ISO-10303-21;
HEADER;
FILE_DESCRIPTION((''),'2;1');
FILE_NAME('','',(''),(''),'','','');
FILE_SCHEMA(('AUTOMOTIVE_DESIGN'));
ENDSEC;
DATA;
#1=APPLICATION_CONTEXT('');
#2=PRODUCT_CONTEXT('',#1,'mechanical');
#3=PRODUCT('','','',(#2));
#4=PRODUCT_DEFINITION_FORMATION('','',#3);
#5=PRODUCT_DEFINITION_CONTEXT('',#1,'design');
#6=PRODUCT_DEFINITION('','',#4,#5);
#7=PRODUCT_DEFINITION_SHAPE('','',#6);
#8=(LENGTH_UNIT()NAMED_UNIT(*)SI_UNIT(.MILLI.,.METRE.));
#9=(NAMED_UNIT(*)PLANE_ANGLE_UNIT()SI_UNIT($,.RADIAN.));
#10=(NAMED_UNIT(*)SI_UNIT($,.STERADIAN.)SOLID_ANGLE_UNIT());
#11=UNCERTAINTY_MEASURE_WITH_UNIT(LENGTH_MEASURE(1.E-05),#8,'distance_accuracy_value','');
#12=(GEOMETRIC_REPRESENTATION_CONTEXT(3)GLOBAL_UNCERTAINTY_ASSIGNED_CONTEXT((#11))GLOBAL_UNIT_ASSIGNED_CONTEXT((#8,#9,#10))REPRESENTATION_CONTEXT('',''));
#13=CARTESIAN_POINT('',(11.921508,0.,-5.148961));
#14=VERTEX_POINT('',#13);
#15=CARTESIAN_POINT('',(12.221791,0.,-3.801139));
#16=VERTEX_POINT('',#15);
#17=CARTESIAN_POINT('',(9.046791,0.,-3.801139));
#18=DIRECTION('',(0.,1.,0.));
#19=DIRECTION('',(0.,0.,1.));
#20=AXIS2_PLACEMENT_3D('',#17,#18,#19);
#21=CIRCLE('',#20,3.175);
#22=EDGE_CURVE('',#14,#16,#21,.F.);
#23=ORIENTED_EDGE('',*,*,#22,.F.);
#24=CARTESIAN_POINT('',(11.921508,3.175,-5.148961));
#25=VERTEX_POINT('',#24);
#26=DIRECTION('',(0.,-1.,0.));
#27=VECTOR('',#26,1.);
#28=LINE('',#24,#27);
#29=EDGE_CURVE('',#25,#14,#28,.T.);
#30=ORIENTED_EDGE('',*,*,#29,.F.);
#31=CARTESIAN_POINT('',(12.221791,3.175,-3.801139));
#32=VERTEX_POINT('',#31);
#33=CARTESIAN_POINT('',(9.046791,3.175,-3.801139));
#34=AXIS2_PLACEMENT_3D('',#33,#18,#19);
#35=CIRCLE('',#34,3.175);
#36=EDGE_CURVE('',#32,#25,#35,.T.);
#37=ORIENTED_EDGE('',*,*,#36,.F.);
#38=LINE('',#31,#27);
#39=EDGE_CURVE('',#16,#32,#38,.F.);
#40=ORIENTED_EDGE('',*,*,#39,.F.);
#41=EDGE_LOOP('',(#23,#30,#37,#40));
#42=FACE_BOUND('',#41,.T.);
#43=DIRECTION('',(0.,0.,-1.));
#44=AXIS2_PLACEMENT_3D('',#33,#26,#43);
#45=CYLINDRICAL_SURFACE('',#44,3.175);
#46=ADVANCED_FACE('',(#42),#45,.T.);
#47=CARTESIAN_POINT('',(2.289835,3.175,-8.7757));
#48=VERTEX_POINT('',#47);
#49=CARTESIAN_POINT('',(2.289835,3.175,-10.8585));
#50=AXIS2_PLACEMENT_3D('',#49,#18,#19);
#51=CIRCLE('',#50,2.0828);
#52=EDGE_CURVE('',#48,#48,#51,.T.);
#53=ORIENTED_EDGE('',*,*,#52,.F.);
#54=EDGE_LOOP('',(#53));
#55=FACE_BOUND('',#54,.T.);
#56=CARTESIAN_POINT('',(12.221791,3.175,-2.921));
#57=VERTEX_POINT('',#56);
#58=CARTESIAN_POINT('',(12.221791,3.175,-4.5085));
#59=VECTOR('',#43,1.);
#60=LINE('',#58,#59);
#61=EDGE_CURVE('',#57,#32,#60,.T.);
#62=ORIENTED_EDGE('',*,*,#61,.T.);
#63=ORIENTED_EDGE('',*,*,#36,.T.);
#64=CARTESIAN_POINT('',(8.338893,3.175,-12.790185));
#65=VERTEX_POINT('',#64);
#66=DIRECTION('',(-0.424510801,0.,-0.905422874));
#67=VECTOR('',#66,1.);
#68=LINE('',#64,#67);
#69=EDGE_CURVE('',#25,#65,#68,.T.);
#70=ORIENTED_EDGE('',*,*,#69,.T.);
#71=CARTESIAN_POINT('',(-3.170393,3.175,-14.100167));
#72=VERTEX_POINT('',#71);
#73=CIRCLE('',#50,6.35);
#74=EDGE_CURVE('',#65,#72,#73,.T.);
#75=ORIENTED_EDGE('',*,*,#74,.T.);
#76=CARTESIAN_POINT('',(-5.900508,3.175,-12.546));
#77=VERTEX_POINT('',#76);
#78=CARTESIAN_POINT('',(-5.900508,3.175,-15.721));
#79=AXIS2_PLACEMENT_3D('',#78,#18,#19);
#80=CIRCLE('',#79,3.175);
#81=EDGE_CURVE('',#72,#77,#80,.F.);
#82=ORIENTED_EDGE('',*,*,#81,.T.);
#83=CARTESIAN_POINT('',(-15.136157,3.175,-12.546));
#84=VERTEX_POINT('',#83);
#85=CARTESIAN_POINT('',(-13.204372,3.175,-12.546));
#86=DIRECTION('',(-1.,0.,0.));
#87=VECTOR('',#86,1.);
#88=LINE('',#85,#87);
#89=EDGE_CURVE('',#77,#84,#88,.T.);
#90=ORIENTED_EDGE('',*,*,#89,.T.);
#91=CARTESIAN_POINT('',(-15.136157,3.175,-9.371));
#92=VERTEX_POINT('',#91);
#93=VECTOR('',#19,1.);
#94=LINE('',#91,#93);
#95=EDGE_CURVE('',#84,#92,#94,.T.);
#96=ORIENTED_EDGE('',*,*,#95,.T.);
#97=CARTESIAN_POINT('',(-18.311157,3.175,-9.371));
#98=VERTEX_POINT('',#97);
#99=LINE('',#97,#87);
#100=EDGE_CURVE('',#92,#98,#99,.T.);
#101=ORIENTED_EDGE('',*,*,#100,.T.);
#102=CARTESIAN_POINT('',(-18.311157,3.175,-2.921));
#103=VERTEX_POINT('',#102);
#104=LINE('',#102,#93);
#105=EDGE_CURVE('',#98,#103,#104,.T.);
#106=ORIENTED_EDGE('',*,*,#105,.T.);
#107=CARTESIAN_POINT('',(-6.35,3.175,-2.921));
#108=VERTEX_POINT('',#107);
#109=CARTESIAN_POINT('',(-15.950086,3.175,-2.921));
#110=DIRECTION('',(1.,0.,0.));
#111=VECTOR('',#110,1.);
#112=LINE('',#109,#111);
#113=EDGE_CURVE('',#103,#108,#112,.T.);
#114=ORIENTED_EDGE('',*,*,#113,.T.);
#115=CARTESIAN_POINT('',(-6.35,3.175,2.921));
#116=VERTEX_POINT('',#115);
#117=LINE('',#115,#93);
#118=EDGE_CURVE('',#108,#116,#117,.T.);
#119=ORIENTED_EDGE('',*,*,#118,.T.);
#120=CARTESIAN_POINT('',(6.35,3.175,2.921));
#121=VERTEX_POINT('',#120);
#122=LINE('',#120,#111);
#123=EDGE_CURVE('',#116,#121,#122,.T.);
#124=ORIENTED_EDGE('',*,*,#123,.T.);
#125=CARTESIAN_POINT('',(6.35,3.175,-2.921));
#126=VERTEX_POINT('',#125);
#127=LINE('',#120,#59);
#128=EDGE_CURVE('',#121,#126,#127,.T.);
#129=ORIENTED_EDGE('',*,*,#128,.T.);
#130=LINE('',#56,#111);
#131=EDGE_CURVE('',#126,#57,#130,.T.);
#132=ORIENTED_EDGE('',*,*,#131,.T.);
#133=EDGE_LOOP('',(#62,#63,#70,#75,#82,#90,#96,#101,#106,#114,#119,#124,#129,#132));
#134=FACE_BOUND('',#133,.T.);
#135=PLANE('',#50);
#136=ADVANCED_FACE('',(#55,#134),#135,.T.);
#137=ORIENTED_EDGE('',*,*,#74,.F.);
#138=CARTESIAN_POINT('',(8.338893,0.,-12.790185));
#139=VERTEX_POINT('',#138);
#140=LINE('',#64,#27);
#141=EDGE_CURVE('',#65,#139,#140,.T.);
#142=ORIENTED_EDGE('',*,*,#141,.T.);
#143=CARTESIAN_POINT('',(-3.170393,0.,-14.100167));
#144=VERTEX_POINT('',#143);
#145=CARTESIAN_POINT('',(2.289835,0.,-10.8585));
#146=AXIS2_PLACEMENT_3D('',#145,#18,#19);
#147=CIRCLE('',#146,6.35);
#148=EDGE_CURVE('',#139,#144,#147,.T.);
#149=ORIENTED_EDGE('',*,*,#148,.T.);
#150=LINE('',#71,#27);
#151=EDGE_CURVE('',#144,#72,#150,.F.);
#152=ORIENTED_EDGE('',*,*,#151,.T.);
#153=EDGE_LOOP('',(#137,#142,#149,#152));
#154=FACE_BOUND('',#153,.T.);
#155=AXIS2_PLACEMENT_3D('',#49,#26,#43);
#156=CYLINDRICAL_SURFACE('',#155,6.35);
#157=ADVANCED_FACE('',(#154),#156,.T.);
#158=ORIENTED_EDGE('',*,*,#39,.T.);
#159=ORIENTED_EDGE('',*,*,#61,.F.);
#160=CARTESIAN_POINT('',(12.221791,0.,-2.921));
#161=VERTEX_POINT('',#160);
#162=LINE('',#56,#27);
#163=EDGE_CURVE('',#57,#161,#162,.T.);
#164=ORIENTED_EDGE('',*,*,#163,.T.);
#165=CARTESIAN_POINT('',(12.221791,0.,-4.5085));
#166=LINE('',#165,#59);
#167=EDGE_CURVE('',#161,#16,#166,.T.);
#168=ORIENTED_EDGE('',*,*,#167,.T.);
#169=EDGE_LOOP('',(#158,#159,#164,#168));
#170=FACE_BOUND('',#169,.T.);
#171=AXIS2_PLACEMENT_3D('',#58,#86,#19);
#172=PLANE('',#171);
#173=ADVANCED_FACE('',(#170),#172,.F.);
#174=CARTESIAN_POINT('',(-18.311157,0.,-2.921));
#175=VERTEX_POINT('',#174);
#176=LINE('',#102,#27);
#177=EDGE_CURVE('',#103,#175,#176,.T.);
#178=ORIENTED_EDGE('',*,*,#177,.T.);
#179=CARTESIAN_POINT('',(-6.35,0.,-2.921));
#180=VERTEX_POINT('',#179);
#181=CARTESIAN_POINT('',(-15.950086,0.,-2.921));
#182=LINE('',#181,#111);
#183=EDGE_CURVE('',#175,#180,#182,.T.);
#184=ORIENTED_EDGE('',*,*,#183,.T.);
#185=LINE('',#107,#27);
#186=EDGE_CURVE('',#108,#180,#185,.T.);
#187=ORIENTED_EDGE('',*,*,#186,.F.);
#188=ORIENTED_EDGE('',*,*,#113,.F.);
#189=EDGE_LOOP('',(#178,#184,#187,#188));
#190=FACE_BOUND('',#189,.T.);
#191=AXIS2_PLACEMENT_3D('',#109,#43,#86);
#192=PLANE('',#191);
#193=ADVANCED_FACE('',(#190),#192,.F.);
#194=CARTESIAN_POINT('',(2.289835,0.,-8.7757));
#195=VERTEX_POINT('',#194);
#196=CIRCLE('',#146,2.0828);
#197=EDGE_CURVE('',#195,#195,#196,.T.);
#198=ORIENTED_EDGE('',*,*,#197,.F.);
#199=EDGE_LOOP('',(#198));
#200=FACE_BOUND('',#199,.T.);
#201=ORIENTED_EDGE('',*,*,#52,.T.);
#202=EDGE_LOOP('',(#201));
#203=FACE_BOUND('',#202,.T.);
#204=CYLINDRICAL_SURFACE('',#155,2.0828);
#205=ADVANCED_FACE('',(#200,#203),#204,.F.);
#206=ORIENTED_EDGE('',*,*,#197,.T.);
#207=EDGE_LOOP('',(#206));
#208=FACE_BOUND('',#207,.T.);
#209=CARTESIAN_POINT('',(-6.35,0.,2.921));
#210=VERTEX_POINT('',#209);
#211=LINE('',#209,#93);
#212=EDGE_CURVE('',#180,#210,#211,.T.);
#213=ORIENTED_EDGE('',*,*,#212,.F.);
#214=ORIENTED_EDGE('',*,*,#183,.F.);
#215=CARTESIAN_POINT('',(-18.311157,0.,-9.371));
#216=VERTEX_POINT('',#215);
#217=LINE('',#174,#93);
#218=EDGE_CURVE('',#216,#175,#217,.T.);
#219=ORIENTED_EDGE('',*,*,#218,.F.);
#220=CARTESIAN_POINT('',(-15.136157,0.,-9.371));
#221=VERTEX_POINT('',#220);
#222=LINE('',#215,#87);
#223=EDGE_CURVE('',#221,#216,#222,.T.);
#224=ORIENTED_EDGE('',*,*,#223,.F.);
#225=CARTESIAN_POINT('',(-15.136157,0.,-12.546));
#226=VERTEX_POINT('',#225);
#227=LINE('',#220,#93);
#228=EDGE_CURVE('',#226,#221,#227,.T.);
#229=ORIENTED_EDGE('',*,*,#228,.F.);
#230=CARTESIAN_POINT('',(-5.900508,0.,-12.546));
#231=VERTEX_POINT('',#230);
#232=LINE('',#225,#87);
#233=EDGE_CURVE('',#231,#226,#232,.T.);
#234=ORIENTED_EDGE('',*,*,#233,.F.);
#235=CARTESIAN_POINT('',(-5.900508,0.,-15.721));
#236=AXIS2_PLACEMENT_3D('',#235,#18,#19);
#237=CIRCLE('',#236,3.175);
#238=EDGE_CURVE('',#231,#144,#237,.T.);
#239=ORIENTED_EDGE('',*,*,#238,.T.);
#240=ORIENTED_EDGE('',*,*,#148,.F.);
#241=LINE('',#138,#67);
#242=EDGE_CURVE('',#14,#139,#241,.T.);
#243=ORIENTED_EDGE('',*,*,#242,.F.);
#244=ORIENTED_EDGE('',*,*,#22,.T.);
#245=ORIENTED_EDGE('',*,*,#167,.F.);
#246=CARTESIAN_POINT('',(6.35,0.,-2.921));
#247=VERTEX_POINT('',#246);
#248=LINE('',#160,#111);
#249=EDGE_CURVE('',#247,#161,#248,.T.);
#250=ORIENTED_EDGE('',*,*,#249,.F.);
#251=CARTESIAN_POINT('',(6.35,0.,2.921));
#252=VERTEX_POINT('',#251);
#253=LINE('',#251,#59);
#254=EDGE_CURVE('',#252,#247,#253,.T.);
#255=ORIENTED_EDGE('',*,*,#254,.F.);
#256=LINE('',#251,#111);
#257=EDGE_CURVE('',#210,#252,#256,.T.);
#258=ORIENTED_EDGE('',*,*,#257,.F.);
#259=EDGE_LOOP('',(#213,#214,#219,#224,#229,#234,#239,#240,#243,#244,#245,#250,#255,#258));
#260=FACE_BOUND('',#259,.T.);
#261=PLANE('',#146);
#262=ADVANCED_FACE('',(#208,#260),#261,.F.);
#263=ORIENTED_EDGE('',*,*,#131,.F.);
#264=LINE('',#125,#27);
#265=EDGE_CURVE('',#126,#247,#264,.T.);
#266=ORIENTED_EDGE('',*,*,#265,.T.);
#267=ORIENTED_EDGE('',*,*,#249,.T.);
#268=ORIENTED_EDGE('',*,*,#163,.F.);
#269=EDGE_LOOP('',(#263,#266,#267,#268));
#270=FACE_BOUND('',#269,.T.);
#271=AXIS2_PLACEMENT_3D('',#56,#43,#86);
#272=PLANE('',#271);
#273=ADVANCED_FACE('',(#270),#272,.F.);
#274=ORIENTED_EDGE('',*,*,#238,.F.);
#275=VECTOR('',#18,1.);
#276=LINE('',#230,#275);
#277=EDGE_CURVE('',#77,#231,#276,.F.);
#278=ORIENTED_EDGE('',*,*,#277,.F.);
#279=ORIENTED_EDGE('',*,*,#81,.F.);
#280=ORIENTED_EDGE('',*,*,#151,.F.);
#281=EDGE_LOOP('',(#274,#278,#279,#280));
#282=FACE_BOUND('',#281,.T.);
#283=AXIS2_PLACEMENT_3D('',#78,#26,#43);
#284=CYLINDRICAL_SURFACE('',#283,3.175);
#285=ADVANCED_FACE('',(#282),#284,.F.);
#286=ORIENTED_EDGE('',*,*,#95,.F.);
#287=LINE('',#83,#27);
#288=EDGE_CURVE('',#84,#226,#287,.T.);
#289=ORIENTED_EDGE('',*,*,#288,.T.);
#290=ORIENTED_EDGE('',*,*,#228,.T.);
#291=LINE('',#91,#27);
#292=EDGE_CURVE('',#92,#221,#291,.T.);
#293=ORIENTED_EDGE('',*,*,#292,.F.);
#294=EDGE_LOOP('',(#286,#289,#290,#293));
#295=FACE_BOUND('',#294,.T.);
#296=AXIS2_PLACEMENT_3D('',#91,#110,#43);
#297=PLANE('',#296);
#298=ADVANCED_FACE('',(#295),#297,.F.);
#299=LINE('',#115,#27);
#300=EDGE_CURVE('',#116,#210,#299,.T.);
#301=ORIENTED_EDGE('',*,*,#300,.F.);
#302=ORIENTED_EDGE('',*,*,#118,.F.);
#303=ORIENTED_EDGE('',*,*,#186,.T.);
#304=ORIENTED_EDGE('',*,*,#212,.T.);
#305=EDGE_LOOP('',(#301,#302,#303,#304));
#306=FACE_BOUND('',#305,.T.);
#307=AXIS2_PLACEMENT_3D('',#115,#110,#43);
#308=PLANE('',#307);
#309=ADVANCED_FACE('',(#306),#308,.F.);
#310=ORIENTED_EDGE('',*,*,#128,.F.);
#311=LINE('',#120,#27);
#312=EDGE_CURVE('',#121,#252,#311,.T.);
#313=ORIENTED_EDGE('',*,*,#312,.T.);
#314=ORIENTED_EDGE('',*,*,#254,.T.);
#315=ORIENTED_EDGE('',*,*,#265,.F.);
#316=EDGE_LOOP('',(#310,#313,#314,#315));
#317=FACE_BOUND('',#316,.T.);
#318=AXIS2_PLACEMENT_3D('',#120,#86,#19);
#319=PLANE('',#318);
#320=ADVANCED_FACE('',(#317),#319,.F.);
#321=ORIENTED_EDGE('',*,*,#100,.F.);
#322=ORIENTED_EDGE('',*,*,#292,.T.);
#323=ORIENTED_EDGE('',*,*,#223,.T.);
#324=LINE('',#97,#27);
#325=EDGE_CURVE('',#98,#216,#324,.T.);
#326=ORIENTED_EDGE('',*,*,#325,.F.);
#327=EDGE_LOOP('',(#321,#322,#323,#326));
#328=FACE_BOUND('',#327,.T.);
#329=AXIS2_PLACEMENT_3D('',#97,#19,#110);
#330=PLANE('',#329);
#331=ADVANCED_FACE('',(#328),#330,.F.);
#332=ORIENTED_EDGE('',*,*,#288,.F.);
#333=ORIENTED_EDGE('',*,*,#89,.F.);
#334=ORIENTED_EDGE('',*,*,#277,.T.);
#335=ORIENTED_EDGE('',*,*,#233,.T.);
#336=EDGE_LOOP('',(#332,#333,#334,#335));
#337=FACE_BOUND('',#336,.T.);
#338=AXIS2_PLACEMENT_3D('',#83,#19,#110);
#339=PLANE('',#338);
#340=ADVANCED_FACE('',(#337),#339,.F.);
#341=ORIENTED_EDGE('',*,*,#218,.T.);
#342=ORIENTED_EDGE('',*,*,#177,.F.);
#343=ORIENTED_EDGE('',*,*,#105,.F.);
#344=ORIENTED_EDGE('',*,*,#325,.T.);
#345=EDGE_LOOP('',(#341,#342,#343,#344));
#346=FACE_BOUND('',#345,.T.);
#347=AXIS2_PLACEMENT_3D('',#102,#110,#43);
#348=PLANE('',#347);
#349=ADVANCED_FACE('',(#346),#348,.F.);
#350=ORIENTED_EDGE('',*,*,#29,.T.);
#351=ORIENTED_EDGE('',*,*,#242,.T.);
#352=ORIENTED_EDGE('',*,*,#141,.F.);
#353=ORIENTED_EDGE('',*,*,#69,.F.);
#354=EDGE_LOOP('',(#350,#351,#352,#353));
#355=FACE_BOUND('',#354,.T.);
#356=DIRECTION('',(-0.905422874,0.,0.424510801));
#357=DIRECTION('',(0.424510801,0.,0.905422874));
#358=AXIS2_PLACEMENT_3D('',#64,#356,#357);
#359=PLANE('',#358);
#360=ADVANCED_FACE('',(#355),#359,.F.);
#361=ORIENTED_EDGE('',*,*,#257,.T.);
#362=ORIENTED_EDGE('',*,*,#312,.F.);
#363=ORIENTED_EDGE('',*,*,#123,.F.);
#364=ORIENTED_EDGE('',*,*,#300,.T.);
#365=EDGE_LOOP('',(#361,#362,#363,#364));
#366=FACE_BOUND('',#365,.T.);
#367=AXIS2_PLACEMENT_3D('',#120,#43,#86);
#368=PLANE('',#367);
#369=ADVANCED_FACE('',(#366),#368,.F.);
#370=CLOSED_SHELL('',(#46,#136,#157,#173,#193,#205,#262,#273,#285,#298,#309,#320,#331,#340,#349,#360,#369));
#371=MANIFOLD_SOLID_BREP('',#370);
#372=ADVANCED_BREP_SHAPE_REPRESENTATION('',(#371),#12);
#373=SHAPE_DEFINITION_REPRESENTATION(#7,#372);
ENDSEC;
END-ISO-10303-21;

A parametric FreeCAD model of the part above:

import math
import FreeCAD as App
import Part
import Sketcher
from FreeCAD import Vector
Q = App.Units.Quantity


def edges_at(feature, points):
    """Names of the edges that pass closest to the given points."""
    edges = feature.Shape.Edges
    near = lambda p: min(range(len(edges)), key=lambda i: edges[i].distToShape(Part.Vertex(*p))[0])
    return sorted({f"Edge{near(p) + 1}" for p in points})

doc = App.newDocument("Part")
params = doc.addObject("Spreadsheet::Sheet", "Params")
for row, (alias, value) in enumerate([
    ("sketch1_radius", "0.25 in"),
    ("sketch1_diameter", "0.164 in"),
    ("sketch1_width", "0.5 in"),
    ("sketch1_height", "0.23 in"),
    ("sketch1_width2", "0.125 in"),
    ("pad1_length", "0.125 in"),
    ("fillet_radius", "0.125 in"),
], start=1):
    params.set(f"A{row}", alias)
    params.set(f"B{row}", "=" + value)
    params.setAlias(f"B{row}", alias)

body = doc.addObject("PartDesign::Body", "Body")

# Sketch on XZ plane
sketch1 = body.newObject("Sketcher::SketchObject", "Sketch")
sketch1.AttachmentSupport = (doc.getObject("XZ_Plane"), [""])
sketch1.MapMode = "FlatFace"
sketch1.addGeometry([
    Part.LineSegment(Vector(-18.3, -9.4, 0), Vector(-18.3, -2.9, 0)),  # 0
    Part.LineSegment(Vector(-18.3, -2.9, 0), Vector(-6.3, -2.9, 0)),  # 1
    Part.LineSegment(Vector(-6.3, -2.9, 0), Vector(-6.3, 2.9, 0)),  # 2
    Part.LineSegment(Vector(-6.3, 2.9, 0), Vector(6.3, 2.9, 0)),  # 3
    Part.LineSegment(Vector(6.3, 2.9, 0), Vector(6.3, -2.9, 0)),  # 4
    Part.LineSegment(Vector(6.3, -2.9, 0), Vector(12.2, -2.9, 0)),  # 5
    Part.LineSegment(Vector(12.2, -2.9, 0), Vector(12.2, -4.5, 0)),  # 6
    Part.LineSegment(Vector(12.2, -4.5, 0), Vector(8.3, -12.8, 0)),  # 7
    Part.ArcOfCircle(Part.Circle(Vector(2.3, -10.9, 0), Vector(0, 0, 1), 6.3), math.radians(-165), math.radians(-18)),  # 8
    Part.LineSegment(Vector(-3.8, -12.5, 0), Vector(-15.1, -12.5, 0)),  # 9
    Part.LineSegment(Vector(-15.1, -12.5, 0), Vector(-15.1, -9.4, 0)),  # 10
    Part.LineSegment(Vector(-15.1, -9.4, 0), Vector(-18.3, -9.4, 0)),  # 11
    Part.Circle(Vector(2.3, -10.9, 0), Vector(0, 0, 1), 2.1),  # 12
], False)
sketch1.addConstraint([
    Sketcher.Constraint("Coincident", 0, 2, 1, 1),
    Sketcher.Constraint("Coincident", 1, 2, 2, 1),
    Sketcher.Constraint("Coincident", 2, 2, 3, 1),
    Sketcher.Constraint("Coincident", 3, 2, 4, 1),
    Sketcher.Constraint("Coincident", 4, 2, 5, 1),
    Sketcher.Constraint("Coincident", 5, 2, 6, 1),
    Sketcher.Constraint("Coincident", 6, 2, 7, 1),
    Sketcher.Constraint("Coincident", 7, 2, 8, 2),
    Sketcher.Constraint("Coincident", 8, 1, 9, 1),
    Sketcher.Constraint("Coincident", 9, 2, 10, 1),
    Sketcher.Constraint("Coincident", 10, 2, 11, 1),
    Sketcher.Constraint("Coincident", 11, 2, 0, 1),
    Sketcher.Constraint("Vertical", 0),
    Sketcher.Constraint("Horizontal", 1),
    Sketcher.Constraint("Vertical", 2),
    Sketcher.Constraint("Horizontal", 3),
    Sketcher.Constraint("Vertical", 4),
    Sketcher.Constraint("Horizontal", 5),
    Sketcher.Constraint("Vertical", 6),
    Sketcher.Constraint("Horizontal", 9),
    Sketcher.Constraint("Vertical", 10),
    Sketcher.Constraint("Horizontal", 11),
    Sketcher.Constraint("Coincident", 12, 3, 8, 3),
    Sketcher.Constraint("Symmetric", 1, 2, 3, 2, -1, 1),
    Sketcher.Constraint("Horizontal", 1, 2, 4, 2),
    Sketcher.Constraint("Equal", 11, 10),
    Sketcher.Constraint("Radius", 8, Q("0.25 in")),
    Sketcher.Constraint("Diameter", 12, Q("0.164 in")),
    Sketcher.Constraint("DistanceX", 3, 1, 3, 2, Q("0.5 in")),
    Sketcher.Constraint("DistanceY", 2, 1, 2, 2, Q("0.23 in")),
    Sketcher.Constraint("DistanceX", 11, 2, 11, 1, Q("0.125 in")),
    Sketcher.Constraint("DistanceY", 6, 2, 6, 1, Q("0.0625 in")),
    Sketcher.Constraint("DistanceY", 8, 3, 6, 2, Q("0.25 in")),
    Sketcher.Constraint("DistanceY", 0, 1, 0, 2, Q("6.45 mm")),
    Sketcher.Constraint("DistanceX", 5, 1, 5, 2, Q("5.871791 mm")),
    Sketcher.Constraint("DistanceX", 7, 2, 6, 2, Q("3.882898 mm")),
    Sketcher.Constraint("Distance", 7, Q("9.14676 mm")),
    Sketcher.Constraint("DistanceX", 1, 1, 1, 2, Q("11.961157 mm")),
])
sketch1.setExpression("Constraints[26]", "Params.sketch1_radius")
sketch1.setExpression("Constraints[27]", "Params.sketch1_diameter")
sketch1.setExpression("Constraints[28]", "Params.sketch1_width")
sketch1.setExpression("Constraints[29]", "Params.sketch1_height")
sketch1.setExpression("Constraints[30]", "Params.sketch1_width2")
pad1 = body.newObject("PartDesign::Pad", "Pad")
pad1.Profile = sketch1
pad1.setExpression("Length", "Params.pad1_length")
pad1.Reversed = True
doc.recompute()

fillet = body.newObject("PartDesign::Fillet", "Fillet")
fillet.Base = (pad1, edges_at(pad1, [(-3.832, 1.587, -12.546), (12.222, 1.587, -4.508)]))
fillet.setExpression("Radius", "Params.fillet_radius")

doc.recompute()
